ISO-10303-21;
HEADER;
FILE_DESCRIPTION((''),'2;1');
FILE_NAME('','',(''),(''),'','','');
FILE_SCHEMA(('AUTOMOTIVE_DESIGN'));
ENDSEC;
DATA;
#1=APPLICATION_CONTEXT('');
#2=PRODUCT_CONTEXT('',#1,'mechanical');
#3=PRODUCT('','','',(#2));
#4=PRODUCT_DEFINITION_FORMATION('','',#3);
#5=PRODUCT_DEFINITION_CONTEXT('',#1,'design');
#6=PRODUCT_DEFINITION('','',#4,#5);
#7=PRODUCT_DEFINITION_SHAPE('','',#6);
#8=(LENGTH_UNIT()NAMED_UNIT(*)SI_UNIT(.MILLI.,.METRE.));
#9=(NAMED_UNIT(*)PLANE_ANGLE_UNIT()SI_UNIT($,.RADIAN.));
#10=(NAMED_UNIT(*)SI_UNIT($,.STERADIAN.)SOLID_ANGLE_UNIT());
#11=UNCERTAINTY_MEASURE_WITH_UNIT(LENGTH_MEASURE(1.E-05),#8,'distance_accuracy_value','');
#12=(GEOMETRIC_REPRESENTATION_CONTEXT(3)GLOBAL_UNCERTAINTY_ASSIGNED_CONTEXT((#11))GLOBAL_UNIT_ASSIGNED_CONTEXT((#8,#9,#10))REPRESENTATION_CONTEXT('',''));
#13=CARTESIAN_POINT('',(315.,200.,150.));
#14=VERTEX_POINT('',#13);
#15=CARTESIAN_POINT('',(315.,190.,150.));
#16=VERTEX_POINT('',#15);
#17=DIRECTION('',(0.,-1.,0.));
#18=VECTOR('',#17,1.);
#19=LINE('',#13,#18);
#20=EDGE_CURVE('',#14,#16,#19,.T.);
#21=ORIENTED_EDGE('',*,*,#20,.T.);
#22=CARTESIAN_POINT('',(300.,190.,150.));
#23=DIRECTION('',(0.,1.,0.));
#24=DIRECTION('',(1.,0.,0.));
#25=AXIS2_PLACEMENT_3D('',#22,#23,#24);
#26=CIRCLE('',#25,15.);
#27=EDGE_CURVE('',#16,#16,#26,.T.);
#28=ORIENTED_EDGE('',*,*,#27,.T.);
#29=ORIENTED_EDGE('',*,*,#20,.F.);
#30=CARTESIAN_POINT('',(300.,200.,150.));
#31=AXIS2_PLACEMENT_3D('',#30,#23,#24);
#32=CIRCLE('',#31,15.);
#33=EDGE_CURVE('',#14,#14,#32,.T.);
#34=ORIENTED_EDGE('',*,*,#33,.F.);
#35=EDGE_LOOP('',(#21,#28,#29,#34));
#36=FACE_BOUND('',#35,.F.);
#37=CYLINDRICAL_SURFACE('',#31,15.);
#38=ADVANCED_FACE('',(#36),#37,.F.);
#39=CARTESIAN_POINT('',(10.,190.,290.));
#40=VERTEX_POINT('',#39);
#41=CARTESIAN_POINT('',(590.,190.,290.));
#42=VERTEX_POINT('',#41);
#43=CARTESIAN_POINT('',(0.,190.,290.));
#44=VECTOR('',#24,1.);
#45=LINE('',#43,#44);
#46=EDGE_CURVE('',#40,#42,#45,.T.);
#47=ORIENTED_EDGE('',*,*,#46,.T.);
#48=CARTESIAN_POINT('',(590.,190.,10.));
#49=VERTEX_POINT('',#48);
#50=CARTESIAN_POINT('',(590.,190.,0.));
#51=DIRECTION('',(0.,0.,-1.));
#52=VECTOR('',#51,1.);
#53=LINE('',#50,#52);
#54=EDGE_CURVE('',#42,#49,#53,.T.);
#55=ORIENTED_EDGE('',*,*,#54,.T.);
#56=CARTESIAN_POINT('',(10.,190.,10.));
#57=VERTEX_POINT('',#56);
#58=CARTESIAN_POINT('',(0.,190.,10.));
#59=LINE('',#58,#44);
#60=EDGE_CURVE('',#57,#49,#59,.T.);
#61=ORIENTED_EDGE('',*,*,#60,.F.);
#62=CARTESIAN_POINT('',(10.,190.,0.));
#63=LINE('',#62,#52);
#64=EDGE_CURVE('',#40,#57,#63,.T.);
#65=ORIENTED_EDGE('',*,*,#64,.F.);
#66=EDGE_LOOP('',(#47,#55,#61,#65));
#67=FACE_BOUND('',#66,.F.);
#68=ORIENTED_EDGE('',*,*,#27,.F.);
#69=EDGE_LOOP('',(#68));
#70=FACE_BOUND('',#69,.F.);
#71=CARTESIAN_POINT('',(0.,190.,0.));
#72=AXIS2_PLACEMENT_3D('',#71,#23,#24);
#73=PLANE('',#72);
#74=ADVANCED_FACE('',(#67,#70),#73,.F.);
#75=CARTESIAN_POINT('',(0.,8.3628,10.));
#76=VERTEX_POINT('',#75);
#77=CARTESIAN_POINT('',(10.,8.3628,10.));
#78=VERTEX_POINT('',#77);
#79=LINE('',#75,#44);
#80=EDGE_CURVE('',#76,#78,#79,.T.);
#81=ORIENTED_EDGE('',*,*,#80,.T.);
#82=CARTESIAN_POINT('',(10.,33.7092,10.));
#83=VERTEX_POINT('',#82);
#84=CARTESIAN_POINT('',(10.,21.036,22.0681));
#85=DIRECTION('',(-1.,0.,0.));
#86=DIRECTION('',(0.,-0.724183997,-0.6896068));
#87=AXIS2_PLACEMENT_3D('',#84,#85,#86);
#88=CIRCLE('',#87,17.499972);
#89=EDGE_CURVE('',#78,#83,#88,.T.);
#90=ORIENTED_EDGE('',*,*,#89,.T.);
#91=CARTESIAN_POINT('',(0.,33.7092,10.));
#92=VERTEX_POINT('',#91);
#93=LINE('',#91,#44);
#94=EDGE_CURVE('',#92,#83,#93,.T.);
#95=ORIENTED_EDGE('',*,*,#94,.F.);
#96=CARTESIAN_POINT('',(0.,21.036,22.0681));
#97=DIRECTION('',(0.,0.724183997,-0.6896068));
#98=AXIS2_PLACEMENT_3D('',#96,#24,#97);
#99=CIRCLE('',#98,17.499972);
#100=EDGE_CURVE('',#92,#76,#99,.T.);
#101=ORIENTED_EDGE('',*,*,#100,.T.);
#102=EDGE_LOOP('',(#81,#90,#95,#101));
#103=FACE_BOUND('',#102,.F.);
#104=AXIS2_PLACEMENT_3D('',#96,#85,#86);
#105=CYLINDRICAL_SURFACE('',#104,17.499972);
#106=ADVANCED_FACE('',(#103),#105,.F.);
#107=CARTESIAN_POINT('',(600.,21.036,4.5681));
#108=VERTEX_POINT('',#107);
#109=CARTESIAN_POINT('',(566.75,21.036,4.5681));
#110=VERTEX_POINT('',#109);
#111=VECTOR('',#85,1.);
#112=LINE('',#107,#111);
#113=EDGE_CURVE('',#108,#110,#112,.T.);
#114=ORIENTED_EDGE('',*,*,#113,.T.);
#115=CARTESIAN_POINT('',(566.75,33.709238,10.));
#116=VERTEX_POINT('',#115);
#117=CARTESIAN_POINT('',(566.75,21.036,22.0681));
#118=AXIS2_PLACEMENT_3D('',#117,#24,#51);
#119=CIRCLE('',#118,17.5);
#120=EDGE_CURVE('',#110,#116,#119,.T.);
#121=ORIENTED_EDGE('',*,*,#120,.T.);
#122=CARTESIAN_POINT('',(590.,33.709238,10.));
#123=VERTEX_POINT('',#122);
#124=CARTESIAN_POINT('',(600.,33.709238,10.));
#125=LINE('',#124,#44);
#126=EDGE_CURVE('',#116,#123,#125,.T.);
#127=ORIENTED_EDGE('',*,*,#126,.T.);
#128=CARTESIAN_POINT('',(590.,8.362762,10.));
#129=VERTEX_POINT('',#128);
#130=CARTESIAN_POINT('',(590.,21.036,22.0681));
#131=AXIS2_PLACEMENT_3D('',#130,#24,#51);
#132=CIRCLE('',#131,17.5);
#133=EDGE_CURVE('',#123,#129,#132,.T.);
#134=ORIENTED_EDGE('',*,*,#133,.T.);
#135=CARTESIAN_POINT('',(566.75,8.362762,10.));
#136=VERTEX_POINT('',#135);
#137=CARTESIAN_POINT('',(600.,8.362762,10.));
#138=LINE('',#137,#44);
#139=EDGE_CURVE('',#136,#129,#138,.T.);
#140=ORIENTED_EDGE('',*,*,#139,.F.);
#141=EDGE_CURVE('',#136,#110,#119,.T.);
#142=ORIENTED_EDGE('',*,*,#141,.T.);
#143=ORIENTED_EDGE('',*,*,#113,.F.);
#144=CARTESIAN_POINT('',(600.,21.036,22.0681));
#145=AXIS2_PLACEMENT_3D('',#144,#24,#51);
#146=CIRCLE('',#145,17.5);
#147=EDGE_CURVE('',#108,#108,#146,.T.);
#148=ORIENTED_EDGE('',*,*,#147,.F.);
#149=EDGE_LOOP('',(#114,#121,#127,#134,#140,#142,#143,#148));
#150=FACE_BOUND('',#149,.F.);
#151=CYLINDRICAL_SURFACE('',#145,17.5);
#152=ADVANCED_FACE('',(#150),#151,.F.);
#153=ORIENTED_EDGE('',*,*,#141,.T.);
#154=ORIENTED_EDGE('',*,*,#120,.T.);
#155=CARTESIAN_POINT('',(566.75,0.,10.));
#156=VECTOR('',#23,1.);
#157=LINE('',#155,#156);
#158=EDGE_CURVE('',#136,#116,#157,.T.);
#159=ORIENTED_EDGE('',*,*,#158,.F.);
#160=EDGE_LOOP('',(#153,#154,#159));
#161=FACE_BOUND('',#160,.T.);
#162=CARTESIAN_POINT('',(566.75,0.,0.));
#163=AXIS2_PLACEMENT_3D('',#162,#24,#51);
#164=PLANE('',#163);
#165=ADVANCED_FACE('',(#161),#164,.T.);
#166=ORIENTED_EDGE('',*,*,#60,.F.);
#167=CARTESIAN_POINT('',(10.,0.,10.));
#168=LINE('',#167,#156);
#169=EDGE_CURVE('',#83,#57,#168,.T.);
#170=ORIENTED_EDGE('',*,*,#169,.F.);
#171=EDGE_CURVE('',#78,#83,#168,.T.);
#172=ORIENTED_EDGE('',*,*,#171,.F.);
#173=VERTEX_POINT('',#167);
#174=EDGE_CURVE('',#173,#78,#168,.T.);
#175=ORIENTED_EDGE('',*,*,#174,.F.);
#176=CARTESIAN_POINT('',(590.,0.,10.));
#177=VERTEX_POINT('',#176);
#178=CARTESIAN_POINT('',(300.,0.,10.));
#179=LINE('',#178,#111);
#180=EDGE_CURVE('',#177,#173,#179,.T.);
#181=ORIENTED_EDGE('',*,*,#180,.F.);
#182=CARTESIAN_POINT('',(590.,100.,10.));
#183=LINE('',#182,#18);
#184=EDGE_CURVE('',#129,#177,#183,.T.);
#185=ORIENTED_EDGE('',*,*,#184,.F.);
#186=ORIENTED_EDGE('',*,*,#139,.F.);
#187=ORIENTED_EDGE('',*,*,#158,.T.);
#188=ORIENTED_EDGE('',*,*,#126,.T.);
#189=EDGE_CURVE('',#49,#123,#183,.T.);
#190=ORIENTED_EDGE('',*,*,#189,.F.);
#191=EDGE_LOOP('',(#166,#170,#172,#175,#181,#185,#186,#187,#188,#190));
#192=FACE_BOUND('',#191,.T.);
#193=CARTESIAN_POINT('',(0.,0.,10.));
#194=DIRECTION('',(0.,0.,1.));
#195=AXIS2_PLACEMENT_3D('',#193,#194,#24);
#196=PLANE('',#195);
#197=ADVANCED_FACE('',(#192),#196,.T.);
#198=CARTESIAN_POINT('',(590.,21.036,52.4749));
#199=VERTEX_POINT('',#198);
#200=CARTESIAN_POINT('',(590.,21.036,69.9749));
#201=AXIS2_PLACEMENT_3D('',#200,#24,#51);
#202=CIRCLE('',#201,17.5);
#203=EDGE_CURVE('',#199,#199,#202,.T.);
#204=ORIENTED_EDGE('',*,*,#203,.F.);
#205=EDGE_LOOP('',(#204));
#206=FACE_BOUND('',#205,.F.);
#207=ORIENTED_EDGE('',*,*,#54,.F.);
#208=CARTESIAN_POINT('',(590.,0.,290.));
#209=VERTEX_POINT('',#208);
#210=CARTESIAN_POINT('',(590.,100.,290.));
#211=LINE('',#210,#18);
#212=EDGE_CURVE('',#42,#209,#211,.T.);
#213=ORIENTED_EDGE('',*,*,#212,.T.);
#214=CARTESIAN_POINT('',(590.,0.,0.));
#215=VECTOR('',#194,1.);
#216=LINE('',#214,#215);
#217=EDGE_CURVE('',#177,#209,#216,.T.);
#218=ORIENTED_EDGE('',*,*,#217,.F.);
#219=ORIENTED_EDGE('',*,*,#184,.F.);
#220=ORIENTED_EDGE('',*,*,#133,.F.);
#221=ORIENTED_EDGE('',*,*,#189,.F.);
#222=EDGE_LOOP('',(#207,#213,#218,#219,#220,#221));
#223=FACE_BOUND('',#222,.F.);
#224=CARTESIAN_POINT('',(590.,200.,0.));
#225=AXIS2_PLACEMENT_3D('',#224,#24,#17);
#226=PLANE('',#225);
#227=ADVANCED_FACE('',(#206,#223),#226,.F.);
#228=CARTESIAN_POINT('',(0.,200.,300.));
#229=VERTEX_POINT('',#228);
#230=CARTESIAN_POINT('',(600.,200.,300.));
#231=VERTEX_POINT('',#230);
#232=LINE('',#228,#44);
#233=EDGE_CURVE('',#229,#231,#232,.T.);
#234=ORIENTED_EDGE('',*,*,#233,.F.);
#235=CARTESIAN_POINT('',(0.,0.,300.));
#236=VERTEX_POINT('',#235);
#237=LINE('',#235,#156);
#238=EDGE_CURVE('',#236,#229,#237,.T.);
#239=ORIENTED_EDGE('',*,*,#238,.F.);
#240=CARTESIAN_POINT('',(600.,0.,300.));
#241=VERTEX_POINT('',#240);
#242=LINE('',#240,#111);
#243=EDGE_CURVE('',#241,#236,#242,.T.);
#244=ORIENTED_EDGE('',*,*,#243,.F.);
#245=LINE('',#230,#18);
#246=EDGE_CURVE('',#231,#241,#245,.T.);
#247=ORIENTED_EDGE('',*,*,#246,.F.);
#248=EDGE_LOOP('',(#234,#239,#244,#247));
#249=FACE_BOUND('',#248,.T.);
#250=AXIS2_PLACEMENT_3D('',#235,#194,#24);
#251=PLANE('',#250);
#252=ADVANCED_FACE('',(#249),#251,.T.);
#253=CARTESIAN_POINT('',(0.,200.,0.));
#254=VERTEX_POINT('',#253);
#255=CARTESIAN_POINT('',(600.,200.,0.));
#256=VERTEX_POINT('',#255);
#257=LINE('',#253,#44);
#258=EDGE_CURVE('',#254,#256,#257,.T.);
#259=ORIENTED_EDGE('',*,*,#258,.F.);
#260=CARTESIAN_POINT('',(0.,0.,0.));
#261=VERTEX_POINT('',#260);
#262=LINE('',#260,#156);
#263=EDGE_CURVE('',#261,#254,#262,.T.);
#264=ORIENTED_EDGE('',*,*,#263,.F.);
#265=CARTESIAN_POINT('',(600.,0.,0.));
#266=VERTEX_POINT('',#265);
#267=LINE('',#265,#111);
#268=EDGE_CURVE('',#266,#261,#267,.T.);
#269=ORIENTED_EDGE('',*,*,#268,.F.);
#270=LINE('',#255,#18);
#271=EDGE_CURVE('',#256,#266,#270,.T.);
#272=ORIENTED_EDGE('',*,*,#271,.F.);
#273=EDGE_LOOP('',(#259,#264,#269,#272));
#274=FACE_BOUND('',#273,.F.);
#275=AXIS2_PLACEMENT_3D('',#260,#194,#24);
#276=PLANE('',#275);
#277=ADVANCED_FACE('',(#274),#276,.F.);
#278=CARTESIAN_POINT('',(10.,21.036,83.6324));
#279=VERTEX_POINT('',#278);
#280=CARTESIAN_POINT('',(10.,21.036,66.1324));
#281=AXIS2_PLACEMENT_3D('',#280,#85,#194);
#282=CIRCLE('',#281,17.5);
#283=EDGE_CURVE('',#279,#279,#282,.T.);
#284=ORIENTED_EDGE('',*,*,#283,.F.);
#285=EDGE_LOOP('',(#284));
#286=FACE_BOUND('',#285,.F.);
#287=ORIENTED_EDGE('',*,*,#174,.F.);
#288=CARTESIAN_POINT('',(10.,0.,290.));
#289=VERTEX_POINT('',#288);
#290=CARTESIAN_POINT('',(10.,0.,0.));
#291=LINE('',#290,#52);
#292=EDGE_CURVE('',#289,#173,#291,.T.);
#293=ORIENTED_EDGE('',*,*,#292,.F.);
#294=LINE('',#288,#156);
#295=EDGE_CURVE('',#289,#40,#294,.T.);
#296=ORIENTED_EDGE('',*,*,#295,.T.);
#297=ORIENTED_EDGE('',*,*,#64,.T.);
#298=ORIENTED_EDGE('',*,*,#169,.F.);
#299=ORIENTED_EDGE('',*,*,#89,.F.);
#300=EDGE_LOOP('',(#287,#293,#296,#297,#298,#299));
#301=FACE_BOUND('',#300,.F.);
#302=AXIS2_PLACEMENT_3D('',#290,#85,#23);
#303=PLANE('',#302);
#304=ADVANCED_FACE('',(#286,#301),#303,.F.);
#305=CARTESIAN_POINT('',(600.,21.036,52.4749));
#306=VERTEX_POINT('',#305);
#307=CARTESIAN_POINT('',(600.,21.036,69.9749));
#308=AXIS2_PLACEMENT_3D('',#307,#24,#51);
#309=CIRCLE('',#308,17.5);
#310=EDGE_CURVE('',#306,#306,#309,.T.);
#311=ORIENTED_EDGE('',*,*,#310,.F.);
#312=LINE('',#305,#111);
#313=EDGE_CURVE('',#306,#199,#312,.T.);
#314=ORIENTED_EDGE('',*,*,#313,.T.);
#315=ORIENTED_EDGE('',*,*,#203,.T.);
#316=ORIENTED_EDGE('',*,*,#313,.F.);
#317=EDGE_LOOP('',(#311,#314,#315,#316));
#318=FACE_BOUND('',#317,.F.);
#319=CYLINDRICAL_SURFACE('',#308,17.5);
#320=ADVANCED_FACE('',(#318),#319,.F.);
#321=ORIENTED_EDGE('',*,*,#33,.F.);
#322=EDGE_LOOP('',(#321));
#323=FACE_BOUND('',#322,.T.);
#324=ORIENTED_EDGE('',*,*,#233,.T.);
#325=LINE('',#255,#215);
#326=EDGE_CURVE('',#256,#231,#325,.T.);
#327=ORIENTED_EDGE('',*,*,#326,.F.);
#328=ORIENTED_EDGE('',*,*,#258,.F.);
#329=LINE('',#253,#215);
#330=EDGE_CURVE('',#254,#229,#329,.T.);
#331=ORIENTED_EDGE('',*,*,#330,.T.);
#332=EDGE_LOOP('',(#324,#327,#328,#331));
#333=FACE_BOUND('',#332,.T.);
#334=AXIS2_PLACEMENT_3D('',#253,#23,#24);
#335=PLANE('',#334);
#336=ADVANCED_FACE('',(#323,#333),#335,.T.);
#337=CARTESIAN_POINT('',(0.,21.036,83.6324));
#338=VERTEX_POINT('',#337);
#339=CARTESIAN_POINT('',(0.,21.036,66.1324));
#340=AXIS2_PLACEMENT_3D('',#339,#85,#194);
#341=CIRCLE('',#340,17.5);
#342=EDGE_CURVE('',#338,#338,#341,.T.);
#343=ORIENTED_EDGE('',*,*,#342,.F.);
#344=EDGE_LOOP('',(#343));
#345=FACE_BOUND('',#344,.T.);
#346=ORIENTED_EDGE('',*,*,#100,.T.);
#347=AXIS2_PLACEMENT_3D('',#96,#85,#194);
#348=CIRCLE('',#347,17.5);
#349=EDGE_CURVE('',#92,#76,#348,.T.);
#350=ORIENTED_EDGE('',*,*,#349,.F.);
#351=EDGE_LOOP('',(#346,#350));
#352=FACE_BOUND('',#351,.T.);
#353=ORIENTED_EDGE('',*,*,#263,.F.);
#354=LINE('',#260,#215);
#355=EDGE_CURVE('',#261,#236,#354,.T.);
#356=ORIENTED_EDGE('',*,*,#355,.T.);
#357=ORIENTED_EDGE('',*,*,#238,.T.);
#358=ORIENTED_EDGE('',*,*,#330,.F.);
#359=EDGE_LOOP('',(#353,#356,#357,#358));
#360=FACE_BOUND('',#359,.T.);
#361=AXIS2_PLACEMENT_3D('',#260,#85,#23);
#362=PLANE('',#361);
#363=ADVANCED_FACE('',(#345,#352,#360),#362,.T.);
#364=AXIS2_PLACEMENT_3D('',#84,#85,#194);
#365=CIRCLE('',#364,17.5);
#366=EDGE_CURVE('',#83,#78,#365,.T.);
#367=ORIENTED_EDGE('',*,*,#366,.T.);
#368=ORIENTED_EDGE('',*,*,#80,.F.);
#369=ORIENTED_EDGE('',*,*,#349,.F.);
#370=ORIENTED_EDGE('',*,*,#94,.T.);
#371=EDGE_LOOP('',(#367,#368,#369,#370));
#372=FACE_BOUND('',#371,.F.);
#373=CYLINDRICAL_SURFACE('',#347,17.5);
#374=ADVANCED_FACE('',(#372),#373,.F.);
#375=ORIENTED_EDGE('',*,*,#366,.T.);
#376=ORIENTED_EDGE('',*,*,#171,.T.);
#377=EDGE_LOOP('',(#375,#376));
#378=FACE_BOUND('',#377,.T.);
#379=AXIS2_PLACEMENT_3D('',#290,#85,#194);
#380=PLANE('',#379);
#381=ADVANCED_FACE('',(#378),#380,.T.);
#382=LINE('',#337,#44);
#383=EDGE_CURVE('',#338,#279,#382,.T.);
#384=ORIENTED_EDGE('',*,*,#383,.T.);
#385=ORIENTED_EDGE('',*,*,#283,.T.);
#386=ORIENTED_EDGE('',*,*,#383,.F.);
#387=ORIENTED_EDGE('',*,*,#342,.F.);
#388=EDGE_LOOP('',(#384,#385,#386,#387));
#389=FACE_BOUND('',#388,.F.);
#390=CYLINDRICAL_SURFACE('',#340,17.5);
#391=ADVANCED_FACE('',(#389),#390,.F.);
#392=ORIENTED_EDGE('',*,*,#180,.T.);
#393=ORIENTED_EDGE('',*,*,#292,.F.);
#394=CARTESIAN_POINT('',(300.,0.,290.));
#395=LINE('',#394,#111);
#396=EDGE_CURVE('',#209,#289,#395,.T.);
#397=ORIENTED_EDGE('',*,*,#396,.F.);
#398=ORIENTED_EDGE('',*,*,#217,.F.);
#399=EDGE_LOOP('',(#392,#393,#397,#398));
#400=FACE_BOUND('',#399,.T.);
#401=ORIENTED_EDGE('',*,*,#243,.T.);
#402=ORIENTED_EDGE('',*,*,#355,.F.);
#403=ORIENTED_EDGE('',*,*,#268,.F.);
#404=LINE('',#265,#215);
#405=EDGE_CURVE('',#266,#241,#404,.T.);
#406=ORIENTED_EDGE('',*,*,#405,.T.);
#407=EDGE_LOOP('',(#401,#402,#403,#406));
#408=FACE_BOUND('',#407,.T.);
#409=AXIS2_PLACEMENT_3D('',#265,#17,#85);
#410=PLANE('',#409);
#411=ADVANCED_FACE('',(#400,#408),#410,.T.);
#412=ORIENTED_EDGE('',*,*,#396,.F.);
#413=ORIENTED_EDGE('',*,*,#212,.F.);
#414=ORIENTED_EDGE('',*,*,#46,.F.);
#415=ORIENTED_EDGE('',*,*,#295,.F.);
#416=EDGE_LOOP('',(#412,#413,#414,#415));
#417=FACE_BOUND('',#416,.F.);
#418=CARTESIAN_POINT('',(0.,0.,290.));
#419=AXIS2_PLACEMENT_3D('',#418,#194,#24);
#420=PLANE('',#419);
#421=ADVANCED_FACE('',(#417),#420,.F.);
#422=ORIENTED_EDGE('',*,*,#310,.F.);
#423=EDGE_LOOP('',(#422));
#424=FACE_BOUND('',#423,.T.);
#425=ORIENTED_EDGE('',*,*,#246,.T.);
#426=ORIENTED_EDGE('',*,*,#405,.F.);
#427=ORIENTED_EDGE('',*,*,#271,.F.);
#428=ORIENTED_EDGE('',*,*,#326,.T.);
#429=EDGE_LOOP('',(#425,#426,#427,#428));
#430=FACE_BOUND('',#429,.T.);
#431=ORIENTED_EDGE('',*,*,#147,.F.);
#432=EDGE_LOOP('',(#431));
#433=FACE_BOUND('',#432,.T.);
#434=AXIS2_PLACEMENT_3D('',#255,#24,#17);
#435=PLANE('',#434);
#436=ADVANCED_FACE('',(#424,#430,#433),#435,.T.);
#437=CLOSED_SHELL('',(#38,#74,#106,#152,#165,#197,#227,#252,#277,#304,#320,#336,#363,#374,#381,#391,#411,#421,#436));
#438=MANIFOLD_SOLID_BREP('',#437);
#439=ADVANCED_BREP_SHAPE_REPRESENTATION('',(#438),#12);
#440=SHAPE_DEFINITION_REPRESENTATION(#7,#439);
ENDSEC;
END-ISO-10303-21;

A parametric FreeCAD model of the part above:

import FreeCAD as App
import Part
import Sketcher


def faces_at(feature, points):
    """Names of the faces that lie closest to the given points."""
    faces = feature.Shape.Faces
    near = lambda p: min(range(len(faces)), key=lambda i: faces[i].distToShape(Part.Vertex(*p))[0])
    return sorted({f"Face{near(p) + 1}" for p in points})


def add_polygon(sketch, points):
    """Adds a closed chain of lines whose ends are joined by coincident constraints."""
    first, n = sketch.GeometryCount, len(points)
    for a, b in zip(points, points[1:] + points[:1]):
        sketch.addGeometry(Part.LineSegment(App.Vector(*a, 0), App.Vector(*b, 0)), False)
    for i in range(n):
        sketch.addConstraint(Sketcher.Constraint("Coincident", first + i, 2, first + (i + 1) % n, 1))

doc = App.newDocument("Part")
body = doc.addObject("PartDesign::Body", "Body")

# Sketch on XY plane
sketch1 = body.newObject("Sketcher::SketchObject", "Sketch")
sketch1.AttachmentSupport = (doc.getObject("XY_Plane"), [""])
sketch1.MapMode = "FlatFace"
add_polygon(sketch1, [(0, 200), (0, 0), (600, 0), (600, 200)])  # lines 0-3
sketch1.addConstraint([
    Sketcher.Constraint("Vertical", 0),
    Sketcher.Constraint("Horizontal", 1),
    Sketcher.Constraint("Vertical", 2),
    Sketcher.Constraint("Horizontal", 3),
    Sketcher.Constraint("Coincident", 0, 2, -1, 1),
    Sketcher.Constraint("DistanceX", 1, 1, 1, 2, 600.0),
    Sketcher.Constraint("DistanceY", 0, 2, 0, 1, 200.0),
])
pad1 = body.newObject("PartDesign::Pad", "Pad")
pad1.Profile = sketch1
pad1.Length = 300
doc.recompute()

thickness = body.newObject("PartDesign::Thickness", "Thickness")
thickness.Base = (pad1, faces_at(pad1, [(400, 0, 100)]))
thickness.Value = 10
thickness.Reversed = True
thickness.Join = "Intersection"

# Sketch on XZ plane
sketch2 = body.newObject("Sketcher::SketchObject", "Sketch001")
sketch2.AttachmentSupport = (doc.getObject("XZ_Plane"), [""])
sketch2.MapMode = "FlatFace"
sketch2.AttachmentOffset = App.Placement(App.Vector(0, 0, -200), App.Rotation())
sketch2.addGeometry(Part.Circle(App.Vector(300, 150, 0), App.Vector(0, 0, 1), 15), False)
sketch2.addConstraint([
    Sketcher.Constraint("Diameter", 0, 30.0),
    Sketcher.Constraint("DistanceX", -1, 1, 0, 3, 300.0),
    Sketcher.Constraint("DistanceY", -1, 1, 0, 3, 150.0),
])
pocket1 = body.newObject("PartDesign::Pocket", "Pocket")
pocket1.Profile = sketch2
pocket1.Length = 33.25
pocket1.Reversed = True

# Sketch on YZ plane
sketch3 = body.newObject("Sketcher::SketchObject", "Sketch002")
sketch3.AttachmentSupport = (doc.getObject("YZ_Plane"), [""])
sketch3.MapMode = "FlatFace"
sketch3.AttachmentOffset = App.Placement(App.Vector(0, 0, 600), App.Rotation())
sketch3.addGeometry([
    Part.Circle(App.Vector(21, 22, 0), App.Vector(0, 0, 1), 18),
    Part.Circle(App.Vector(21, 70, 0), App.Vector(0, 0, 1), 18),
], False)
sketch3.addConstraint([
    Sketcher.Constraint("Equal", 0, 1),
    Sketcher.Constraint("Vertical", 0, 3, 1, 3),
    Sketcher.Constraint("Diameter", 0, 35.0),
    Sketcher.Constraint("DistanceX", -1, 1, 0, 3, 21.036),
    Sketcher.Constraint("DistanceY", -1, 1, 0, 3, 22.068),
    Sketcher.Constraint("DistanceY", -1, 1, 1, 3, 69.975),
])
pocket2 = body.newObject("PartDesign::Pocket", "Pocket001")
pocket2.Profile = sketch3
pocket2.Length = 33.25

# Sketch on YZ plane
sketch4 = body.newObject("Sketcher::SketchObject", "Sketch003")
sketch4.AttachmentSupport = (doc.getObject("YZ_Plane"), [""])
sketch4.MapMode = "FlatFace"
sketch4.addGeometry([
    Part.Circle(App.Vector(21, 22, 0), App.Vector(0, 0, 1), 17),
    Part.Circle(App.Vector(21, 66, 0), App.Vector(0, 0, 1), 18),
], False)
sketch4.addConstraint([
    Sketcher.Constraint("Equal", 0, 1),
    Sketcher.Constraint("Vertical", 0, 3, 1, 3),
    Sketcher.Constraint("Diameter", 0, 35.0),
    Sketcher.Constraint("DistanceX", -1, 1, 0, 3, 21.036),
    Sketcher.Constraint("DistanceY", -1, 1, 0, 3, 22.068),
    Sketcher.Constraint("DistanceY", -1, 1, 1, 3, 66.1324),
])
pocket3 = body.newObject("PartDesign::Pocket", "Pocket002")
pocket3.Profile = sketch4
pocket3.Length = 10
pocket3.Reversed = True

doc.recompute()
